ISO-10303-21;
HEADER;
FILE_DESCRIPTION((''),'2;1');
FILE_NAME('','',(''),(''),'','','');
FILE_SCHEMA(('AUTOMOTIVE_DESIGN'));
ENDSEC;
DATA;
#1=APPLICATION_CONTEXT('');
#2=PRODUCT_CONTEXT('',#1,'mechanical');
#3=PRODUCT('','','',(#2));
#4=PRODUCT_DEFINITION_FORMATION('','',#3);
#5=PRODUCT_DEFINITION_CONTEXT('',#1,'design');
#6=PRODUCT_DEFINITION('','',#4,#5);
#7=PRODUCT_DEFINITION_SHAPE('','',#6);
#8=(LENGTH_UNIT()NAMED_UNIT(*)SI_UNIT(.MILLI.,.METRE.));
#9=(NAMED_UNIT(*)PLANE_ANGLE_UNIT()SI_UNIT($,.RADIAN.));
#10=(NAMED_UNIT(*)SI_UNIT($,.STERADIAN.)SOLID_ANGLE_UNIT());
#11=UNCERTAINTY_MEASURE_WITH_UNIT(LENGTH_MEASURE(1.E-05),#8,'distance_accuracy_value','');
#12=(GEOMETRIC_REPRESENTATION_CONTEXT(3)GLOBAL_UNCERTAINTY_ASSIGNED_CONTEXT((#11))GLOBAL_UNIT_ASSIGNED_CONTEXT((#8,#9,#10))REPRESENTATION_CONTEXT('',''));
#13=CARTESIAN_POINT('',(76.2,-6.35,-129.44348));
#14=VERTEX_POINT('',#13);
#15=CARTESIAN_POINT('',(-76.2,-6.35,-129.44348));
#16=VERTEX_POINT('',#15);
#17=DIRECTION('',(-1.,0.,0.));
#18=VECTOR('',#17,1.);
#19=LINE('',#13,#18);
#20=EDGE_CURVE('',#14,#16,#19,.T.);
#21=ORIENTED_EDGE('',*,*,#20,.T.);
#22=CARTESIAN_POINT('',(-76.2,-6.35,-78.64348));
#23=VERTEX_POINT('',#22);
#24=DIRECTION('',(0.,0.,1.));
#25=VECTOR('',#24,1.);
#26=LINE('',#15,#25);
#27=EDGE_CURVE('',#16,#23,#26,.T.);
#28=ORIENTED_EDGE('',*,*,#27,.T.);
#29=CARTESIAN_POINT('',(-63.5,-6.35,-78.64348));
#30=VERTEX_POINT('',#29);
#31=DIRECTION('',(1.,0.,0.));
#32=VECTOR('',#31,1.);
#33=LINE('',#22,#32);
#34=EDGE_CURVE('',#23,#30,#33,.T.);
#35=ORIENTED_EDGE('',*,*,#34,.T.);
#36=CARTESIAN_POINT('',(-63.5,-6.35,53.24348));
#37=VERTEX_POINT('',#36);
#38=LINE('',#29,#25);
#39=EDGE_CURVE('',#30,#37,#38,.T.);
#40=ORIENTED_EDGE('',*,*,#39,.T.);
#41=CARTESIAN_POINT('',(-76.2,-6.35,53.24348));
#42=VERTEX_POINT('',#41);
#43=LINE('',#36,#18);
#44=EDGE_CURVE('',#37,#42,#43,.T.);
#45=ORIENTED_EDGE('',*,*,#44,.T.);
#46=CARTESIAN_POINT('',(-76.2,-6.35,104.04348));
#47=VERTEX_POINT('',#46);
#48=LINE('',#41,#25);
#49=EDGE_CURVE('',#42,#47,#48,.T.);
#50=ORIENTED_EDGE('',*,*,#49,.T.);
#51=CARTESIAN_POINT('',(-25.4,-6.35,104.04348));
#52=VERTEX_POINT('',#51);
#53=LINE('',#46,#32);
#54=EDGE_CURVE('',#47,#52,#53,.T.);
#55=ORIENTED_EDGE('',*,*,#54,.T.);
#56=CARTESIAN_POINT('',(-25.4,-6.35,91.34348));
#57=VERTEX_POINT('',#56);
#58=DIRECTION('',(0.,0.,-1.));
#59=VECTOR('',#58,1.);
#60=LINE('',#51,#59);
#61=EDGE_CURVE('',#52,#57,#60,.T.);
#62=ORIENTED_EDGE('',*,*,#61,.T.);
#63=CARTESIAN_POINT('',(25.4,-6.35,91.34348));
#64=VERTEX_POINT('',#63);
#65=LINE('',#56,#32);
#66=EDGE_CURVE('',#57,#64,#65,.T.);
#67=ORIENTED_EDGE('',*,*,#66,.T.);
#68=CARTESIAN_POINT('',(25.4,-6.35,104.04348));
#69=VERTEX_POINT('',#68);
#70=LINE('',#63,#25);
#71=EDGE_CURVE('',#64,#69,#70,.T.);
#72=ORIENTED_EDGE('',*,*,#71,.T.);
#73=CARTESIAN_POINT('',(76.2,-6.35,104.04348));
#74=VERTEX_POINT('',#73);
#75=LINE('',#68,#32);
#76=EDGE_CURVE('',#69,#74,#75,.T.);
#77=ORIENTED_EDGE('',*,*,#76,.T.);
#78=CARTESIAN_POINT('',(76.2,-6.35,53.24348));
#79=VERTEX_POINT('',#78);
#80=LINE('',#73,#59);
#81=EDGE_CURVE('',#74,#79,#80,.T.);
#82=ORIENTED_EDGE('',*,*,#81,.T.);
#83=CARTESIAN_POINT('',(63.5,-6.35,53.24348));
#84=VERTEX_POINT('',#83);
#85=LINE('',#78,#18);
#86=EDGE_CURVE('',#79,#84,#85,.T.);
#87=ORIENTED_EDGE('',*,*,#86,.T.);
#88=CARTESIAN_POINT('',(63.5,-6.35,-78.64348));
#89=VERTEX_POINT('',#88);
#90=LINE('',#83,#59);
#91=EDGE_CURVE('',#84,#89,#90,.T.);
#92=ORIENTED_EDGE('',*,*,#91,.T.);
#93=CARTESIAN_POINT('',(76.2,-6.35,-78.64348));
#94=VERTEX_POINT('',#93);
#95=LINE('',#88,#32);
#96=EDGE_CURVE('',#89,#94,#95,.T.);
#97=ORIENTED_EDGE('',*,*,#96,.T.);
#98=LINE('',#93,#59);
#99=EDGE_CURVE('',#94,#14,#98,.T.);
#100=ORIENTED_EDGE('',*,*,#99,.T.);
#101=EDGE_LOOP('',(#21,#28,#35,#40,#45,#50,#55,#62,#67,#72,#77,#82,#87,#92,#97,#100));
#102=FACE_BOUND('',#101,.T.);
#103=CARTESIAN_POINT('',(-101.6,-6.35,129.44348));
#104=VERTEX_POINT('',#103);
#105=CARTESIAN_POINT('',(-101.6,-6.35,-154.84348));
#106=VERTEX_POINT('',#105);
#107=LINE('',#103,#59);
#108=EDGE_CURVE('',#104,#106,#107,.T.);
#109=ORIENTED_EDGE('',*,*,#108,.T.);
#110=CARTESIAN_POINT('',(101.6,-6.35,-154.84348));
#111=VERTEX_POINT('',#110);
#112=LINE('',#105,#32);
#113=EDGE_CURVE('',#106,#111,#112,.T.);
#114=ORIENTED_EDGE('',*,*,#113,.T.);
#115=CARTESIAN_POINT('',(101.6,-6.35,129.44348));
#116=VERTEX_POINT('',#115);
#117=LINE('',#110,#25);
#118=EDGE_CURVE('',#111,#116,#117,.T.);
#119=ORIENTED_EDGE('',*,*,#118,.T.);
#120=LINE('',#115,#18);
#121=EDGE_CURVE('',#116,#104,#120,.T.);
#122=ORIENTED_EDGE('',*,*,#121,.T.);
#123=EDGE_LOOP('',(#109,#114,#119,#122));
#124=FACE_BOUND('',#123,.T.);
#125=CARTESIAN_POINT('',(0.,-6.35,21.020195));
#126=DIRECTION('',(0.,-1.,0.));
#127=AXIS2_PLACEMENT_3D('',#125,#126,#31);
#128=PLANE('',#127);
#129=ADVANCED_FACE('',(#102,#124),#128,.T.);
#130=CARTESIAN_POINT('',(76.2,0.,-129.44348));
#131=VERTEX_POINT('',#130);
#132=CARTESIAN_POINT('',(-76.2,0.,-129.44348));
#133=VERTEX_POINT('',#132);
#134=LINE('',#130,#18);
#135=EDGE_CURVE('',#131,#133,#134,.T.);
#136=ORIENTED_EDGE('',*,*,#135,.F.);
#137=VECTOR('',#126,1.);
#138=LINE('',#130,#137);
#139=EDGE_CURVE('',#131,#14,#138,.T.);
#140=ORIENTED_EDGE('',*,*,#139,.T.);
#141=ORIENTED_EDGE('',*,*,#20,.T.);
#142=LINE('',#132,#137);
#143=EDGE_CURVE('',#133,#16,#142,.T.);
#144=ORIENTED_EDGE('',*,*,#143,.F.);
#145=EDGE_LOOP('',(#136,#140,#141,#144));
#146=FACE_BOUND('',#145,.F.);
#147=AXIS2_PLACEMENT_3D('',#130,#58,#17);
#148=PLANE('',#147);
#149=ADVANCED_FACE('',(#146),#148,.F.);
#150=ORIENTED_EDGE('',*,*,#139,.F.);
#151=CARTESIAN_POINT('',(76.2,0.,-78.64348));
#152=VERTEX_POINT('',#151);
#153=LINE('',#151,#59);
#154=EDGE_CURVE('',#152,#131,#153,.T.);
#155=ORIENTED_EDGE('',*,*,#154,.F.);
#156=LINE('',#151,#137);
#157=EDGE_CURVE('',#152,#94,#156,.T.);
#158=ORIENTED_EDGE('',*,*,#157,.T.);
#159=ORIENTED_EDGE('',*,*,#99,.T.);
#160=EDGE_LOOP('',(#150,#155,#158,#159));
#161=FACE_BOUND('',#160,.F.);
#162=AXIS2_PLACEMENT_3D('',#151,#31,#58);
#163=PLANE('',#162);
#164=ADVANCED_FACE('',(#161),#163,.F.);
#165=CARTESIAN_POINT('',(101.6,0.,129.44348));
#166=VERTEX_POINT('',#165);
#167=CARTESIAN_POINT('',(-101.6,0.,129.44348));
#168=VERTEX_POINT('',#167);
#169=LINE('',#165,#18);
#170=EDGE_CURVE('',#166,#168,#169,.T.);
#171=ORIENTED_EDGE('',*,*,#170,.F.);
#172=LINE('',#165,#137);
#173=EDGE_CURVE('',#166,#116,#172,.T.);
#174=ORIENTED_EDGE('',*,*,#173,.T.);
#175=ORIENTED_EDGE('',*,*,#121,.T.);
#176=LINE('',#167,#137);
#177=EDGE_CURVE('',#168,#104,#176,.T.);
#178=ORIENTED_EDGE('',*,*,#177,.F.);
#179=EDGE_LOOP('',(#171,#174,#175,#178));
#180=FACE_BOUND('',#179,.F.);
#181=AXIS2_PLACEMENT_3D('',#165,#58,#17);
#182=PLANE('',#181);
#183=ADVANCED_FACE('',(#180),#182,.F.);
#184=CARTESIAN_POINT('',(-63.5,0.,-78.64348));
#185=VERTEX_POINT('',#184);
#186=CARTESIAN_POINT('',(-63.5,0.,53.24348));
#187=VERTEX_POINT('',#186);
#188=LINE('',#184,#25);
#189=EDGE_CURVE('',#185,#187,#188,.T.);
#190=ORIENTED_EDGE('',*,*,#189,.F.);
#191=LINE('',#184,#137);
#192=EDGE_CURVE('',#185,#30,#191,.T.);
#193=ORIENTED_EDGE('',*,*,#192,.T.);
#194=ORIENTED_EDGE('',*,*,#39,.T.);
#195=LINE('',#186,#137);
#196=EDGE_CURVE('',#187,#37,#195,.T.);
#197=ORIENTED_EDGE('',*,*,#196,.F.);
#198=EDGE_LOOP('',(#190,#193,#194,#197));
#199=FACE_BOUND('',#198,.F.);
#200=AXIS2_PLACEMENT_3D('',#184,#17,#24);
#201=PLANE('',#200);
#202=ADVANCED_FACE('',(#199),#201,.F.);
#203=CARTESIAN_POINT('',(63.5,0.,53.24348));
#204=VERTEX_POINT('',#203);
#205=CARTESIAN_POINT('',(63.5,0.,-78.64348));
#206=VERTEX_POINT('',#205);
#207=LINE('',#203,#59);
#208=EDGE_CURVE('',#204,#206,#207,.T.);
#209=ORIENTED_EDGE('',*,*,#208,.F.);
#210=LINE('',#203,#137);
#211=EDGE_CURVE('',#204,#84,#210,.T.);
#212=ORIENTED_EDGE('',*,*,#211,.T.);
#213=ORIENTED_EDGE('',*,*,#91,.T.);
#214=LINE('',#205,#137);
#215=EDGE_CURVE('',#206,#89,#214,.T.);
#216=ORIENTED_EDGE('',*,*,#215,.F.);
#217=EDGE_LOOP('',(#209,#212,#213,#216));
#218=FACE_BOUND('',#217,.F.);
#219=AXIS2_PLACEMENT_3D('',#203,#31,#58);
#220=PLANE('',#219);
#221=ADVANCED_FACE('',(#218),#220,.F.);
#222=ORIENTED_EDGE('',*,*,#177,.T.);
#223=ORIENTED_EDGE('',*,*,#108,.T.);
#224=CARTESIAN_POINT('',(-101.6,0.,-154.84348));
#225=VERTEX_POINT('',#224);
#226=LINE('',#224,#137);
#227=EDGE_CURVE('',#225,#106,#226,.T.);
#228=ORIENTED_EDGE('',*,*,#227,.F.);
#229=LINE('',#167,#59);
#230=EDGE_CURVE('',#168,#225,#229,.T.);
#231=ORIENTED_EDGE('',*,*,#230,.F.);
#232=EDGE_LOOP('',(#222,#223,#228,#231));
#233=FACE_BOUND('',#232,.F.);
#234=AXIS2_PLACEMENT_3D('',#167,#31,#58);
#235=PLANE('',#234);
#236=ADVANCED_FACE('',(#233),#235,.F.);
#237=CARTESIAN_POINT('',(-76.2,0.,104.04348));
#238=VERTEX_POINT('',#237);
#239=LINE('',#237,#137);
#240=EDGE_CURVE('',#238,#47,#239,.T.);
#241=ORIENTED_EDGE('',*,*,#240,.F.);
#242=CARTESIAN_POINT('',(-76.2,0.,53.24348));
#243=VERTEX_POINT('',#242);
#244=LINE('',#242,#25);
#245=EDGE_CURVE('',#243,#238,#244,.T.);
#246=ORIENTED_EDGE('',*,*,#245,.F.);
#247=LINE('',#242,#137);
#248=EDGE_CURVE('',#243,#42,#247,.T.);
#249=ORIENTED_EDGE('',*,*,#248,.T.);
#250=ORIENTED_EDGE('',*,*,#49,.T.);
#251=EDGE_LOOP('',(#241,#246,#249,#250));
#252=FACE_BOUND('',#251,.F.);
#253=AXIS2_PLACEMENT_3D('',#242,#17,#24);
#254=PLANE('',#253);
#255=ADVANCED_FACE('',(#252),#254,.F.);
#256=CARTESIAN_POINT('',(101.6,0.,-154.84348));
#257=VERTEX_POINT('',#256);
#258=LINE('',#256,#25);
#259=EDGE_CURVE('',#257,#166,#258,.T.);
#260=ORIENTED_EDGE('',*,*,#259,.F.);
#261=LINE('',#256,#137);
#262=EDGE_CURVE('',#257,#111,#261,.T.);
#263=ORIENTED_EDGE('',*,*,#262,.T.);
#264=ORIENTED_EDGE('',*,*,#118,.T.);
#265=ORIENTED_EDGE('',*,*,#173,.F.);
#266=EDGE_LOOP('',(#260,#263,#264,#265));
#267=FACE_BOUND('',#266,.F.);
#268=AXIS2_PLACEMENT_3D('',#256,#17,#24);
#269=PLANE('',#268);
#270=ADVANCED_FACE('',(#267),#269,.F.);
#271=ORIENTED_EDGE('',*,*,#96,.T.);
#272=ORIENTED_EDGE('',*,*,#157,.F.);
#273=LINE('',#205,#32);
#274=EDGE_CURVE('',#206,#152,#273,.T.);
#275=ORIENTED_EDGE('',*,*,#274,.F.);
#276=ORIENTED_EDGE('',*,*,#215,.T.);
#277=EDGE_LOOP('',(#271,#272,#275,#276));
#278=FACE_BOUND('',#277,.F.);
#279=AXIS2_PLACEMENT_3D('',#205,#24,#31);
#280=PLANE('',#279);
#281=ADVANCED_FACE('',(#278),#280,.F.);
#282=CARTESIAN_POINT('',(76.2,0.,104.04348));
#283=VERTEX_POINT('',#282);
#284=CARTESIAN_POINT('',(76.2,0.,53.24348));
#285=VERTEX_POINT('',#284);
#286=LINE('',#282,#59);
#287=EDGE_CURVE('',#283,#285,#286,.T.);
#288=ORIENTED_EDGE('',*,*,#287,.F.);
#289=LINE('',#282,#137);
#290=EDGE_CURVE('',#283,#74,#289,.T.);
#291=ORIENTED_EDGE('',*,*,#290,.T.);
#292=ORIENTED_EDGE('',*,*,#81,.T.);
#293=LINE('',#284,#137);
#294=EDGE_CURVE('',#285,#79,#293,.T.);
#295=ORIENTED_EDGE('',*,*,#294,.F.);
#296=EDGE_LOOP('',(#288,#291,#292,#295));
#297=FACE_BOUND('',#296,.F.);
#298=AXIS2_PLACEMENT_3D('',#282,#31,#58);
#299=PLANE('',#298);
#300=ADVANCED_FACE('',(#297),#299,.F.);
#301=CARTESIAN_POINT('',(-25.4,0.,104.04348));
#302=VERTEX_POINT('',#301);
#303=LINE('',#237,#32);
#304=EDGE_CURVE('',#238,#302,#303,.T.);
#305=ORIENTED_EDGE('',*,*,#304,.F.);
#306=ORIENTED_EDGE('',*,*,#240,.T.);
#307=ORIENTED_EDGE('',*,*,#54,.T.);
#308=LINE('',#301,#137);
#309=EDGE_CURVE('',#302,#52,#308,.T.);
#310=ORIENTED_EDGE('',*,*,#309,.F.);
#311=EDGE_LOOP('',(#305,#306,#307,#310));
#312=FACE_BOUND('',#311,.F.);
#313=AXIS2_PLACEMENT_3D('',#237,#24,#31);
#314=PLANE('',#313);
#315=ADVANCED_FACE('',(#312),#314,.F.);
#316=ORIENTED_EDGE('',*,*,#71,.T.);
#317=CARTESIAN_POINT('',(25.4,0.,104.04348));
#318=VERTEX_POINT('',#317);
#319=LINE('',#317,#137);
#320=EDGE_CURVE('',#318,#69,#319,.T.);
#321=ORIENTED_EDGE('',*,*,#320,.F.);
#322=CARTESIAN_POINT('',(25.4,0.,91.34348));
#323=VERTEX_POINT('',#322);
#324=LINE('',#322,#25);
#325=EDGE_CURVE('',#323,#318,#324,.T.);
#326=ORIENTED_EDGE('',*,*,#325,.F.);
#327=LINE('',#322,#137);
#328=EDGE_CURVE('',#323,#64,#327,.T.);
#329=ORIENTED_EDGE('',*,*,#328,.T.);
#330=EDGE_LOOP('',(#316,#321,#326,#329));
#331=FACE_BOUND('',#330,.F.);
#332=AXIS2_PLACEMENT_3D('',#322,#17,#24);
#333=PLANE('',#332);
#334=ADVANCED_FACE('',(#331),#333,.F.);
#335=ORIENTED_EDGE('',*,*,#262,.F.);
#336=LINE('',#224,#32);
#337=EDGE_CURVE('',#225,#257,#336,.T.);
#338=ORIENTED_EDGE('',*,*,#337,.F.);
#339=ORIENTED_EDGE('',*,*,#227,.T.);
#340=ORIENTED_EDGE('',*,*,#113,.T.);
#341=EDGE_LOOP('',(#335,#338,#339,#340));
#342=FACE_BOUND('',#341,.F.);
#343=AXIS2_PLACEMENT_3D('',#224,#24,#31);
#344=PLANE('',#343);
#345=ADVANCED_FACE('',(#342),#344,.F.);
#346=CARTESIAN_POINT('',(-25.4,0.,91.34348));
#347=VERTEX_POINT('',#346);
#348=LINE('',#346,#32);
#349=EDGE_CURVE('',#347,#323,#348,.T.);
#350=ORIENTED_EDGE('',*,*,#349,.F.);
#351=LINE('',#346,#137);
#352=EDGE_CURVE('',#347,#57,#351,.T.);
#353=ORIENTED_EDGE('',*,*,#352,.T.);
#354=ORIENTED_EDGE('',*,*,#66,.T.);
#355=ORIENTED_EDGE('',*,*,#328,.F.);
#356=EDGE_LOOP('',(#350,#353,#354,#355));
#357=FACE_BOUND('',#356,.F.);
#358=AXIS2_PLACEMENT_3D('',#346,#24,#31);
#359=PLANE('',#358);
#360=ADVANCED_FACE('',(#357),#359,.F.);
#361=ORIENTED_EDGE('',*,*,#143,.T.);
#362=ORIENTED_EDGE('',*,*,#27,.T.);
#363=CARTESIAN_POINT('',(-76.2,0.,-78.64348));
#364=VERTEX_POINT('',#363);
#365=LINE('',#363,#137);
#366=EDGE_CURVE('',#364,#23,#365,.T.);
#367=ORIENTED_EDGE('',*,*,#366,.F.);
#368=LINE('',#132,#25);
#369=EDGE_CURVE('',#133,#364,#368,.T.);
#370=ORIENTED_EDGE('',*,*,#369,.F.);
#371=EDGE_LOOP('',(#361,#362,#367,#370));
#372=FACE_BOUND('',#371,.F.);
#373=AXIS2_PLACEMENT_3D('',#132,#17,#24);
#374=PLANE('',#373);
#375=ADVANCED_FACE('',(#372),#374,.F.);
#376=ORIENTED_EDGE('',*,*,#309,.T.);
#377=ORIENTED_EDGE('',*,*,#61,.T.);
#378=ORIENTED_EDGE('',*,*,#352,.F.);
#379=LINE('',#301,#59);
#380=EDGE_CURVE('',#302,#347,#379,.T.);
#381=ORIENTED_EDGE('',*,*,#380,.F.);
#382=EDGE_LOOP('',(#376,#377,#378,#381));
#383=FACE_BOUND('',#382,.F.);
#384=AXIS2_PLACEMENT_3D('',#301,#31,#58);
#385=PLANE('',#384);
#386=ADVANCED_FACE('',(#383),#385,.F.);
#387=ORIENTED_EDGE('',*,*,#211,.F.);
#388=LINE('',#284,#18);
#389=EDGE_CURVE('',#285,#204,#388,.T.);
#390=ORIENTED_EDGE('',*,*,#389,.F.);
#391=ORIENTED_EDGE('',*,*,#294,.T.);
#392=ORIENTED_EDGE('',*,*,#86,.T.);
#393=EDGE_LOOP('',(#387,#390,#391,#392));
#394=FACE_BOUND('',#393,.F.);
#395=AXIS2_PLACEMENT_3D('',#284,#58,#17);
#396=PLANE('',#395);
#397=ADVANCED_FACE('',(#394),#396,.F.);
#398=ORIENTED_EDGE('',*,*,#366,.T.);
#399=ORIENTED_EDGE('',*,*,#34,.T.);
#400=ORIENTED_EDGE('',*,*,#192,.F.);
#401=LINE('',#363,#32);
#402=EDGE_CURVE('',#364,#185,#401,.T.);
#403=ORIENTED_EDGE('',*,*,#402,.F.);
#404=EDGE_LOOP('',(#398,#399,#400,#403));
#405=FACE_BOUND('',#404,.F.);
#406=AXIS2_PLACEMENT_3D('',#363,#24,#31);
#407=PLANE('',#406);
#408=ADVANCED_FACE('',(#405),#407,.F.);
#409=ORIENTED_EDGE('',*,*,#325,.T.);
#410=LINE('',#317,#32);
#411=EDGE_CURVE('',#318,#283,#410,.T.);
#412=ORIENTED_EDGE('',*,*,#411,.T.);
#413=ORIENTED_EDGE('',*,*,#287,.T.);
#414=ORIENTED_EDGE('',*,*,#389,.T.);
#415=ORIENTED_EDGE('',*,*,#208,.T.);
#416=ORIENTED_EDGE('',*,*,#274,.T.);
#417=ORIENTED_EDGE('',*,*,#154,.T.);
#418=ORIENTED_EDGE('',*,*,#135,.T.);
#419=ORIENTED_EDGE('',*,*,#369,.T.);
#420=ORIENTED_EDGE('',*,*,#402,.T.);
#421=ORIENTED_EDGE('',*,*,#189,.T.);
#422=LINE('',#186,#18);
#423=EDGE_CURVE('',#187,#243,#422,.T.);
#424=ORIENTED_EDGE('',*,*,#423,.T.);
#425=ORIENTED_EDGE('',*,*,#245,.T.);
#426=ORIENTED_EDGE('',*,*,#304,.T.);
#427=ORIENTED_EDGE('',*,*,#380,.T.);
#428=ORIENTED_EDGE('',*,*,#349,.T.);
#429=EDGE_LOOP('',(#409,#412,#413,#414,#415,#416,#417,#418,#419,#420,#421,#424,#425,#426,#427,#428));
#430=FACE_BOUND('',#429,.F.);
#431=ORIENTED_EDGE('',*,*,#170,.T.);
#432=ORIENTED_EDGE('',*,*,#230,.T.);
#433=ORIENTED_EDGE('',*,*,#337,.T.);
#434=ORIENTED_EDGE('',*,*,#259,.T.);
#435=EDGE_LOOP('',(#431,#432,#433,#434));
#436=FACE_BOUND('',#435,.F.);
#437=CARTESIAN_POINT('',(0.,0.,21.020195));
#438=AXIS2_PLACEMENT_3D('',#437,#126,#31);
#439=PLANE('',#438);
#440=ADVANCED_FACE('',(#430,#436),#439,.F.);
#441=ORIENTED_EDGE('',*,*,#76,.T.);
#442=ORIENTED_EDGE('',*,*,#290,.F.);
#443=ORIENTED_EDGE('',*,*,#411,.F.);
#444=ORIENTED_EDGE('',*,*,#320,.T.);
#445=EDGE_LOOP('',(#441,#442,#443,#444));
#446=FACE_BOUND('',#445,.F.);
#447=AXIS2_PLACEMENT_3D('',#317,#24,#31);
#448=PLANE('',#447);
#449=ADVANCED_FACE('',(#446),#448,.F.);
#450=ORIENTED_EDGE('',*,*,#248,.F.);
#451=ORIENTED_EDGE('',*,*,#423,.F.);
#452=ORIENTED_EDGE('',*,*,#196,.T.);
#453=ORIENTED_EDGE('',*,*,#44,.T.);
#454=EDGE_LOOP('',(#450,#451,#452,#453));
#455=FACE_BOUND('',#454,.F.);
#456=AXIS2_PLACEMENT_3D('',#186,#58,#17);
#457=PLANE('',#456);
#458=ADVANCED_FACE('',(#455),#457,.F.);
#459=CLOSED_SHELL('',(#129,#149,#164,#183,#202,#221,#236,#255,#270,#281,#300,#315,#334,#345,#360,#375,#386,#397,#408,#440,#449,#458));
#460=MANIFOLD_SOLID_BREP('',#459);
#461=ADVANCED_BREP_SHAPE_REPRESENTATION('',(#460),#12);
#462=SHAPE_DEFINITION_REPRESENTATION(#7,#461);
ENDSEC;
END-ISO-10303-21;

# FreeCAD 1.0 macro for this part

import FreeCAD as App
import Part
import Sketcher
Q = App.Units.Quantity

doc = App.newDocument("Part")
params = doc.addObject("Spreadsheet::Sheet", "Params")
for row, (alias, value) in enumerate([
    ("sketch1_width", "8 in"),
    ("sketch1_width2", "2 in"),
    ("sketch1_width3", "0.5 in"),
    ("pad1_length", "0.25 in"),
], start=1):
    params.set(f"A{row}", alias)
    params.set(f"B{row}", "=" + value)
    params.setAlias(f"B{row}", alias)

body = doc.addObject("PartDesign::Body", "Body")

sketch1 = body.newObject("Sketcher::SketchObject", "Sketch")
sketch1.AttachmentSupport = (doc.getObject("XZ_Plane"), [""])
sketch1.MapMode = "FlatFace"
sketch1.addGeometry([
    Part.LineSegment(App.Vector(101.6, 129.44348, 0), App.Vector(-101.6, 129.44348, 0)),
    Part.LineSegment(App.Vector(-101.6, 129.44348, 0), App.Vector(-101.6, -154.84348, 0)),
    Part.LineSegment(App.Vector(-101.6, -154.84348, 0), App.Vector(101.6, -154.84348, 0)),
    Part.LineSegment(App.Vector(101.6, -154.84348, 0), App.Vector(101.6, 129.44348, 0)),
    Part.LineSegment(App.Vector(-76.2, -129.44348, 0), App.Vector(-76.2, -78.64348, 0)),
    Part.LineSegment(App.Vector(-76.2, -78.64348, 0), App.Vector(-63.5, -78.64348, 0)),
    Part.LineSegment(App.Vector(-63.5, -78.64348, 0), App.Vector(-63.5, 53.24348, 0)),
    Part.LineSegment(App.Vector(-63.5, 53.24348, 0), App.Vector(-76.2, 53.24348, 0)),
    Part.LineSegment(App.Vector(-76.2, 53.24348, 0), App.Vector(-76.2, 104.04348, 0)),
    Part.LineSegment(App.Vector(-76.2, 104.04348, 0), App.Vector(-25.4, 104.04348, 0)),
    Part.LineSegment(App.Vector(-25.4, 104.04348, 0), App.Vector(-25.4, 91.34348, 0)),
    Part.LineSegment(App.Vector(-25.4, 91.34348, 0), App.Vector(25.4, 91.34348, 0)),
    Part.LineSegment(App.Vector(25.4, 91.34348, 0), App.Vector(25.4, 104.04348, 0)),
    Part.LineSegment(App.Vector(25.4, 104.04348, 0), App.Vector(76.2, 104.04348, 0)),
    Part.LineSegment(App.Vector(76.2, 104.04348, 0), App.Vector(76.2, 53.24348, 0)),
    Part.LineSegment(App.Vector(76.2, 53.24348, 0), App.Vector(63.5, 53.24348, 0)),
    Part.LineSegment(App.Vector(63.5, 53.24348, 0), App.Vector(63.5, -78.64348, 0)),
    Part.LineSegment(App.Vector(63.5, -78.64348, 0), App.Vector(76.2, -78.64348, 0)),
    Part.LineSegment(App.Vector(76.2, -78.64348, 0), App.Vector(76.2, -129.44348, 0)),
    Part.LineSegment(App.Vector(76.2, -129.44348, 0), App.Vector(-76.2, -129.44348, 0)),
], False)
sketch1.addConstraint([
    Sketcher.Constraint("Coincident", 0, 2, 1, 1),
    Sketcher.Constraint("Coincident", 1, 2, 2, 1),
    Sketcher.Constraint("Coincident", 2, 2, 3, 1),
    Sketcher.Constraint("Coincident", 3, 2, 0, 1),
    Sketcher.Constraint("Coincident", 4, 2, 5, 1),
    Sketcher.Constraint("Coincident", 5, 2, 6, 1),
    Sketcher.Constraint("Coincident", 6, 2, 7, 1),
    Sketcher.Constraint("Coincident", 7, 2, 8, 1),
    Sketcher.Constraint("Coincident", 8, 2, 9, 1),
    Sketcher.Constraint("Coincident", 9, 2, 10, 1),
    Sketcher.Constraint("Coincident", 10, 2, 11, 1),
    Sketcher.Constraint("Coincident", 11, 2, 12, 1),
    Sketcher.Constraint("Coincident", 12, 2, 13, 1),
    Sketcher.Constraint("Coincident", 13, 2, 14, 1),
    Sketcher.Constraint("Coincident", 14, 2, 15, 1),
    Sketcher.Constraint("Coincident", 15, 2, 16, 1),
    Sketcher.Constraint("Coincident", 16, 2, 17, 1),
    Sketcher.Constraint("Coincident", 17, 2, 18, 1),
    Sketcher.Constraint("Coincident", 18, 2, 19, 1),
    Sketcher.Constraint("Coincident", 19, 2, 4, 1),
    Sketcher.Constraint("Horizontal", 0),
    Sketcher.Constraint("Vertical", 1),
    Sketcher.Constraint("Horizontal", 2),
    Sketcher.Constraint("Vertical", 3),
    Sketcher.Constraint("Vertical", 4),
    Sketcher.Constraint("Horizontal", 5),
    Sketcher.Constraint("Vertical", 6),
    Sketcher.Constraint("Horizontal", 7),
    Sketcher.Constraint("Vertical", 8),
    Sketcher.Constraint("Horizontal", 9),
    Sketcher.Constraint("Vertical", 10),
    Sketcher.Constraint("Horizontal", 11),
    Sketcher.Constraint("Vertical", 12),
    Sketcher.Constraint("Horizontal", 13),
    Sketcher.Constraint("Vertical", 14),
    Sketcher.Constraint("Horizontal", 15),
    Sketcher.Constraint("Vertical", 16),
    Sketcher.Constraint("Horizontal", 17),
    Sketcher.Constraint("Vertical", 18),
    Sketcher.Constraint("Horizontal", 19),
    Sketcher.Constraint("Symmetric", 9, 2, 12, 2, -2),
    Sketcher.Constraint("Symmetric", 7, 2, 14, 2, -2),
    Sketcher.Constraint("Symmetric", 5, 2, 16, 2, -2),
    Sketcher.Constraint("Vertical", 4, 2, 7, 2),
    Sketcher.Constraint("Vertical", 14, 2, 17, 2),
    Sketcher.Constraint("Equal", 9, 11),
    Sketcher.Constraint("Equal", 13, 4),
    Sketcher.Constraint("Equal", 4, 8),
    Sketcher.Constraint("Equal", 17, 10),
    Sketcher.Constraint("DistanceX", 0, 2, 0, 1, Q("8 in")),
    Sketcher.Constraint("DistanceX", 9, 1, 9, 2, Q("2 in")),
    Sketcher.Constraint("DistanceX", 5, 1, 5, 2, Q("0.5 in")),
    Sketcher.Constraint("DistanceX", 0, 2, -1, 1, Q("4 in")),
    Sketcher.Constraint("DistanceY", 1, 2, 4, 2, Q("3 in")),
    Sketcher.Constraint("DistanceY", 6, 2, 0, 2, Q("3 in")),
    Sketcher.Constraint("DistanceY", 1, 2, 1, 1, Q("11.1924 in")),
    Sketcher.Constraint("DistanceY", -1, 1, 0, 2, Q("5.0962 in")),
])
sketch1.setExpression("Constraints[49]", "Params.sketch1_width")
sketch1.setExpression("Constraints[50]", "Params.sketch1_width2")
sketch1.setExpression("Constraints[51]", "Params.sketch1_width3")
pad1 = body.newObject("PartDesign::Pad", "Pad")
pad1.Profile = sketch1
pad1.setExpression("Length", "Params.pad1_length")

doc.recompute()
